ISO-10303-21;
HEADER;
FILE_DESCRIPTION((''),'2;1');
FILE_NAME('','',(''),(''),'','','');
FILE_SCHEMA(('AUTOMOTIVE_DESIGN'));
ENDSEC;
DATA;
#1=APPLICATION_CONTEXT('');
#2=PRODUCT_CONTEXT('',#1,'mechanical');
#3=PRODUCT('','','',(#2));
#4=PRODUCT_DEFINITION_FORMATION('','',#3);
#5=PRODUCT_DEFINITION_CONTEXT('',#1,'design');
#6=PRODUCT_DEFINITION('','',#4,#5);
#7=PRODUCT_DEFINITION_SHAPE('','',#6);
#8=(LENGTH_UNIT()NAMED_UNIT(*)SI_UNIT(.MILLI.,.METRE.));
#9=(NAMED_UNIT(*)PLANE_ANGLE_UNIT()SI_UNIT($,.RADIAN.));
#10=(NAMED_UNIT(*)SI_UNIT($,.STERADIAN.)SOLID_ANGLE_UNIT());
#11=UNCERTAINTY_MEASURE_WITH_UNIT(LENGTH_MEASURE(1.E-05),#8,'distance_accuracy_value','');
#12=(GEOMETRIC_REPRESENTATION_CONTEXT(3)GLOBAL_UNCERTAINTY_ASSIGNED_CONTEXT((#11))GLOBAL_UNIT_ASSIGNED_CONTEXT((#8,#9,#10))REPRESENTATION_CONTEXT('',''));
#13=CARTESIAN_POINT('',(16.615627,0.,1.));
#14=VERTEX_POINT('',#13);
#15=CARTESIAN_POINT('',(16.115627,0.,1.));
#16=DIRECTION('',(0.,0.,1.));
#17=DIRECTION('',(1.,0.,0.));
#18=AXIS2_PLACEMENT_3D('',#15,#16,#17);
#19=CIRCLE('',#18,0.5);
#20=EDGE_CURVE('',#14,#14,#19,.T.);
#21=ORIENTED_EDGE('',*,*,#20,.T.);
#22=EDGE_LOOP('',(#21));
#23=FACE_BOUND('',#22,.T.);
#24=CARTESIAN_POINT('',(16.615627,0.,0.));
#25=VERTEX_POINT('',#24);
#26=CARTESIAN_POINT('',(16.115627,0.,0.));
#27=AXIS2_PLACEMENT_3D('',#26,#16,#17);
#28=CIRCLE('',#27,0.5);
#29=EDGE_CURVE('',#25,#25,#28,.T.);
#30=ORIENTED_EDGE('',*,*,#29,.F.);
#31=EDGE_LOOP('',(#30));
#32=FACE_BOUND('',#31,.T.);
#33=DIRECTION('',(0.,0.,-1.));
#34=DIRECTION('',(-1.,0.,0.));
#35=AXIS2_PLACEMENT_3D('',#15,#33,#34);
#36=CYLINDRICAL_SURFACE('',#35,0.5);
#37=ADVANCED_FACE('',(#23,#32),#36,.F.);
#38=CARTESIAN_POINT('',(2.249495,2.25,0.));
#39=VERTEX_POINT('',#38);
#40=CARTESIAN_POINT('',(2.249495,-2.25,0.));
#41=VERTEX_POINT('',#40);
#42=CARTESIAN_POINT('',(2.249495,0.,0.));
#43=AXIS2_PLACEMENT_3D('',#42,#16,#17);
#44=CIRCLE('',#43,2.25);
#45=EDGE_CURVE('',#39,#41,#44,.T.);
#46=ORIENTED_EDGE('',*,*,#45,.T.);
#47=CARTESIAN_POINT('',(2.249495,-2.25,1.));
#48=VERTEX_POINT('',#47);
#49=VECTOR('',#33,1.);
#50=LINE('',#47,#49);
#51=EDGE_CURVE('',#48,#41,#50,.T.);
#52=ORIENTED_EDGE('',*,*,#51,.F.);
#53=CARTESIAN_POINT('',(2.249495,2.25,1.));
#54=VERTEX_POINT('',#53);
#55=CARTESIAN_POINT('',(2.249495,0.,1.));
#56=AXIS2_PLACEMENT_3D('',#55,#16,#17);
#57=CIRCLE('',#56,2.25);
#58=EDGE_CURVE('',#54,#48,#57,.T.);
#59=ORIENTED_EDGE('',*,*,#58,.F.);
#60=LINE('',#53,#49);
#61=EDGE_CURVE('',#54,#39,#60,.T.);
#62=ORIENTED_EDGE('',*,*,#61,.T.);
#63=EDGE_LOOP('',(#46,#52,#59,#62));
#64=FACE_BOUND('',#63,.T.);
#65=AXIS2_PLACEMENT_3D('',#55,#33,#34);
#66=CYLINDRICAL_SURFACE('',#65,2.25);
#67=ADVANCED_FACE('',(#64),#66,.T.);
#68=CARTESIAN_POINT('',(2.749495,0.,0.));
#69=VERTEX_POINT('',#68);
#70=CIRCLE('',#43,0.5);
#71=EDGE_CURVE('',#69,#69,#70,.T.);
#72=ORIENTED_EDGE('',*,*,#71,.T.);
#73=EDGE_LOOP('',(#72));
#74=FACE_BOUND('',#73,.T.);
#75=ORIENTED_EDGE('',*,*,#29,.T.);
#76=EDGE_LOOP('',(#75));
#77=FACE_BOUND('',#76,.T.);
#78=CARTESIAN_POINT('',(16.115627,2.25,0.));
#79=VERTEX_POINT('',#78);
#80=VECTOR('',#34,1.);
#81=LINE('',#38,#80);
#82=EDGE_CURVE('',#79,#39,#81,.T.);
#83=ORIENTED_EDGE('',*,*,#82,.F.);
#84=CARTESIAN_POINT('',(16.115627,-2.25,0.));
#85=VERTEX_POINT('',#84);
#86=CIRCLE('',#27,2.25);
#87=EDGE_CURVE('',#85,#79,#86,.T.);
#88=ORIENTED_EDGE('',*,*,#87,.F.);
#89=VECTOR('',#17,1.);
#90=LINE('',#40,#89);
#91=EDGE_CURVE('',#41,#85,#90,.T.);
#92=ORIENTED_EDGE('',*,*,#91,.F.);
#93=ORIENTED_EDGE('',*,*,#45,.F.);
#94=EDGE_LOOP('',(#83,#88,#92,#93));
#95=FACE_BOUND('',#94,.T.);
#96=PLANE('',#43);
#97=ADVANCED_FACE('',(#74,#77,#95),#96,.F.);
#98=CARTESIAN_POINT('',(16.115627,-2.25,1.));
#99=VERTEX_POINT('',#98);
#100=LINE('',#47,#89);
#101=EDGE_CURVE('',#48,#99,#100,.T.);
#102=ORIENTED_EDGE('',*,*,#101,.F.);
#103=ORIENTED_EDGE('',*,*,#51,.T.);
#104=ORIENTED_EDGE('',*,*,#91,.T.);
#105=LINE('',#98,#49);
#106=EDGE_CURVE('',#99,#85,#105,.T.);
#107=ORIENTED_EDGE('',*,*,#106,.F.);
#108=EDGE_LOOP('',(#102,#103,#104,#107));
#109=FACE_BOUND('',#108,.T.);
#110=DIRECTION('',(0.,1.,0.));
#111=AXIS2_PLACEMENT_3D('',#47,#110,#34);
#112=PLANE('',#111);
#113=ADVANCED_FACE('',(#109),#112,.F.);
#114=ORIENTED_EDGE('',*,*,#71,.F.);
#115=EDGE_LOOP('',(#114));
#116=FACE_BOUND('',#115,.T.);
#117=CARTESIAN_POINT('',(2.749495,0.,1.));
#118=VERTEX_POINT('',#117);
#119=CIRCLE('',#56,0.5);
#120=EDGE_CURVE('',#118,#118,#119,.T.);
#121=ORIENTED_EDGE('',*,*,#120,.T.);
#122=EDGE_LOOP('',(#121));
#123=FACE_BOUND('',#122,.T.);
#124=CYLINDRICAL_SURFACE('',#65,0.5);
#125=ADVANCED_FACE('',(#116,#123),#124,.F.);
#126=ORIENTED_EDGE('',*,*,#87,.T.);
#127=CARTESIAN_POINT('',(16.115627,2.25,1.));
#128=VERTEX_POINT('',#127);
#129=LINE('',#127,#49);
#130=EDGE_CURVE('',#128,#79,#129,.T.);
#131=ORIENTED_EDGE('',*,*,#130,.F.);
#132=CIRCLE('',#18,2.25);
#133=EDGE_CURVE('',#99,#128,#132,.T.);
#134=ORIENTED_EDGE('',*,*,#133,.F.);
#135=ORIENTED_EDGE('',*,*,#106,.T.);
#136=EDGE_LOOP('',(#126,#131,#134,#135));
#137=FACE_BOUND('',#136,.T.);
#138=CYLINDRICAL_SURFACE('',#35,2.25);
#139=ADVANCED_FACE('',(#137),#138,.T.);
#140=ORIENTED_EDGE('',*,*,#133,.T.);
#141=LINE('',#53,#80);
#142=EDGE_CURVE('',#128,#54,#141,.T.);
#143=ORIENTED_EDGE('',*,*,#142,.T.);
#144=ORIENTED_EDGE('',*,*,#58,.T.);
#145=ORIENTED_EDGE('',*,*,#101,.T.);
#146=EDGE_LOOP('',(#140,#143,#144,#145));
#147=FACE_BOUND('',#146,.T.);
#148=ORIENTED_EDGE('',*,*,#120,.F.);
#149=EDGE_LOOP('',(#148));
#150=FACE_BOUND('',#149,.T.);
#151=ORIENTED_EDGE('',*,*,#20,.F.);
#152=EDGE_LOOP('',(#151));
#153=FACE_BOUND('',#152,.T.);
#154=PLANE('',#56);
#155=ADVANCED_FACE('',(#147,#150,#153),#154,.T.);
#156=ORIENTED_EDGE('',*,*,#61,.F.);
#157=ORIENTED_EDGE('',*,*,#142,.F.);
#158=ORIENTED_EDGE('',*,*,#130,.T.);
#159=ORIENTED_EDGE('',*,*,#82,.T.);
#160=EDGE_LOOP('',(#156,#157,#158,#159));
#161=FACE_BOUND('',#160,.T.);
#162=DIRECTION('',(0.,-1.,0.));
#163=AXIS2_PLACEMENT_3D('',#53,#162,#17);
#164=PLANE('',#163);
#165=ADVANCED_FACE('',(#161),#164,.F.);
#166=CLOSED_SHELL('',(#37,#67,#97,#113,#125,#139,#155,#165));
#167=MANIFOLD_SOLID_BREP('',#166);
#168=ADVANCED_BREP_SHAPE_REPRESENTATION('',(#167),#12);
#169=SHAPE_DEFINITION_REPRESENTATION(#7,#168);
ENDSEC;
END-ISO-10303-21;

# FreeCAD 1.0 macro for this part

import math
import FreeCAD as App
import Part
import Sketcher

V = App.Vector
Q = App.Units.Quantity

doc = App.newDocument("Part")
body = doc.addObject("PartDesign::Body", "Body")

# Sketch on XY plane
sketch1 = doc.addObject("Sketcher::SketchObject", "Sketch")
body.addObject(sketch1)
sketch1.AttachmentSupport = (doc.XY_Plane, [""])
sketch1.MapMode = "FlatFace"
sketch1.addGeometry([
    Part.LineSegment(V(16.1, 2.2, 0), V(2.2, 2.2, 0)),  # 0
    Part.ArcOfCircle(Part.Circle(V(2.2, 0, 0), V(0, 0, 1), 2.2), math.radians(90), math.radians(270)),  # 1
    Part.LineSegment(V(2.2, -2.2, 0), V(16.1, -2.2, 0)),  # 2
    Part.ArcOfCircle(Part.Circle(V(16.1, 0, 0), V(0, 0, 1), 2.2), math.radians(-90), math.radians(90)),  # 3
    Part.Circle(V(16.1, 0, 0), V(0, 0, 1), 0.5),  # 4
    Part.Circle(V(2.2, 0, 0), V(0, 0, 1), 0.5),  # 5
], False)
sketch1.addConstraint([
    Sketcher.Constraint("Tangent", 0, 2, 1, 1),
    Sketcher.Constraint("Tangent", 1, 2, 2, 1),
    Sketcher.Constraint("Tangent", 2, 2, 3, 1),
    Sketcher.Constraint("Tangent", 3, 2, 0, 1),
    Sketcher.Constraint("Horizontal", 0),
    Sketcher.Constraint("Horizontal", 2),
    Sketcher.Constraint("Coincident", 4, 3, 3, 3),
    Sketcher.Constraint("Coincident", 5, 3, 1, 3),
    Sketcher.Constraint("Equal", 4, 5),
    Sketcher.Constraint("PointOnObject", 1, 3, -1),
    Sketcher.Constraint("Diameter", 4, Q("1 mm")),
    Sketcher.Constraint("Radius", 1, Q("2.25 mm")),
    Sketcher.Constraint("DistanceX", 0, 2, 0, 1, Q("13.866132 mm")),
    Sketcher.Constraint("DistanceX", -1, 1, 1, 3, Q("2.249495 mm")),
])
pad1 = doc.addObject("PartDesign::Pad", "Pad")
body.addObject(pad1)
pad1.Profile = sketch1
pad1.Length = 1

doc.recompute()
